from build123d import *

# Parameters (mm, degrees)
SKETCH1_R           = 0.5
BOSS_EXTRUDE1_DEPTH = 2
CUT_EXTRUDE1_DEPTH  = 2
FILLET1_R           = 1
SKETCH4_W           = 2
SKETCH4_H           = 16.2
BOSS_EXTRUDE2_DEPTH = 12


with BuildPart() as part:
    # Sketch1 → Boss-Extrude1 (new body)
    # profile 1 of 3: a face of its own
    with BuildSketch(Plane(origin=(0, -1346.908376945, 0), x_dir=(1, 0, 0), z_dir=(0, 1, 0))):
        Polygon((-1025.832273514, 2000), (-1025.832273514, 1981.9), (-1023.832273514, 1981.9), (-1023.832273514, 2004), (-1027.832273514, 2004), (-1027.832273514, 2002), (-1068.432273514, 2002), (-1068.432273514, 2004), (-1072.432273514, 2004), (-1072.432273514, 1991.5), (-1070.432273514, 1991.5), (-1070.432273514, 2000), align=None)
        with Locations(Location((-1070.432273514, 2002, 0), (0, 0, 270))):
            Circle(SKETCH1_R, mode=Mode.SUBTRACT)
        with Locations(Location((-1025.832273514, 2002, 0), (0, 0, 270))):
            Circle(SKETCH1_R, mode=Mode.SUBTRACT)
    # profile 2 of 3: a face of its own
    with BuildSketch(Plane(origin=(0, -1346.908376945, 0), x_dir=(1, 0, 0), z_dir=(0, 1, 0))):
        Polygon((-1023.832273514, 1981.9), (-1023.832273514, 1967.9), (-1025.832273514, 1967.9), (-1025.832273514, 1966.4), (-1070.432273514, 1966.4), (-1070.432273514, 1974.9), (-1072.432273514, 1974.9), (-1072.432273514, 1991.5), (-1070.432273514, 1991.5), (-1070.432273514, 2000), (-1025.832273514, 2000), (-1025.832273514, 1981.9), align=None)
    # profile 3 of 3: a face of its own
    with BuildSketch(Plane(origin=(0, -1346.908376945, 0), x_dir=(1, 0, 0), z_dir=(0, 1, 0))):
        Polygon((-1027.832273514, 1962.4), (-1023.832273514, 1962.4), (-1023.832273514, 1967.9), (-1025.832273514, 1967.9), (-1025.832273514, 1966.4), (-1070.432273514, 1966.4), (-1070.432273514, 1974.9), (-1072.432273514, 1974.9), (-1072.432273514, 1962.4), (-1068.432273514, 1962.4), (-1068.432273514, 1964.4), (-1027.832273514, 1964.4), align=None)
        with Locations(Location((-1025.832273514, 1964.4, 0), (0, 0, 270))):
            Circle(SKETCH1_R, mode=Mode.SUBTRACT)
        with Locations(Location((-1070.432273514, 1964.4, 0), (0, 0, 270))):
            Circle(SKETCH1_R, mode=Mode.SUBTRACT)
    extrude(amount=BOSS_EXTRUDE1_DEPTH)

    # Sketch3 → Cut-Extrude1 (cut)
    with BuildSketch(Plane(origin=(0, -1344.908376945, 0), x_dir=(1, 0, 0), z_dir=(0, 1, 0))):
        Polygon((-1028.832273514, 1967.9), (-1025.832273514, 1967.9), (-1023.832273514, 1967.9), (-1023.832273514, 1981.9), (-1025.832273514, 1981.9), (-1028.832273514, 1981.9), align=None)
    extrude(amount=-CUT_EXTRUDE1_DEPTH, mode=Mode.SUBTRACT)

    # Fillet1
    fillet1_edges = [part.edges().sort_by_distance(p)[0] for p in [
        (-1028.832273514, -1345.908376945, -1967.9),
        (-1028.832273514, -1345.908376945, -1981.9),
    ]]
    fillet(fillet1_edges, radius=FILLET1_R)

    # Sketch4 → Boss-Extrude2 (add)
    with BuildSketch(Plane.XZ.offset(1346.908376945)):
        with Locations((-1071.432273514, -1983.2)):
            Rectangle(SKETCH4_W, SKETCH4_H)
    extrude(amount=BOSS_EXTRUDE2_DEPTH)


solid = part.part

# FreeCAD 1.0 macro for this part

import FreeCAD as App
import Part
import Sketcher
from FreeCAD import Vector


def edges_at(feature, points):
    """Names of the edges that pass closest to the given points."""
    edges = feature.Shape.Edges
    near = lambda p: min(range(len(edges)), key=lambda i: edges[i].distToShape(Part.Vertex(*p))[0])
    return sorted({f"Edge{near(p) + 1}" for p in points})


def add_polygon(sketch, points):
    """Adds a closed chain of lines whose ends are joined by coincident constraints."""
    first, n = sketch.GeometryCount, len(points)
    for a, b in zip(points, points[1:] + points[:1]):
        sketch.addGeometry(Part.LineSegment(App.Vector(*a, 0), App.Vector(*b, 0)), False)
    for i in range(n):
        sketch.addConstraint(Sketcher.Constraint("Coincident", first + i, 2, first + (i + 1) % n, 1))

doc = App.newDocument("Part")
body = doc.addObject("PartDesign::Body", "Body")

# Sketch on XZ plane
sketch1 = doc.addObject("Sketcher::SketchObject", "Sketch")
body.addObject(sketch1)
sketch1.AttachmentSupport = (doc.XZ_Plane, [""])
sketch1.MapMode = "FlatFace"
sketch1.AttachmentOffset = App.Placement(Vector(0, 0, 1346.908377), App.Rotation())
add_polygon(sketch1, [(-1023.8, -2004), (-1027.8, -2004), (-1027.8, -2002), (-1068.4, -2002), (-1068.4, -2004), (-1072.4, -2004), (-1072.4, -1962.4), (-1068.4, -1962.4), (-1068.4, -1964.4), (-1027.8, -1964.4), (-1027.8, -1962.4), (-1023.8, -1962.4)])  # lines 0-11
sketch1.addGeometry(Part.Circle(Vector(-1070.4, -2002, 0), Vector(0, 0, 1), 0.5), False)  # 12
sketch1.addGeometry(Part.Circle(Vector(-1025.8, -2002, 0), Vector(0, 0, 1), 0.5), False)  # 13
sketch1.addGeometry(Part.Circle(Vector(-1025.8, -1964.4, 0), Vector(0, 0, 1), 0.5), False)  # 14
sketch1.addGeometry(Part.Circle(Vector(-1070.4, -1964.4, 0), Vector(0, 0, 1), 0.5), False)  # 15
sketch1.addConstraint([
    Sketcher.Constraint("Horizontal", 0),
    Sketcher.Constraint("Vertical", 1),
    Sketcher.Constraint("Horizontal", 2),
    Sketcher.Constraint("Vertical", 3),
    Sketcher.Constraint("Horizontal", 4),
    Sketcher.Constraint("Vertical", 5),
    Sketcher.Constraint("Horizontal", 6),
    Sketcher.Constraint("Vertical", 7),
    Sketcher.Constraint("Horizontal", 8),
    Sketcher.Constraint("Vertical", 9),
    Sketcher.Constraint("Horizontal", 10),
    Sketcher.Constraint("Vertical", 11),
    Sketcher.Constraint("Equal", 12, 13),
    Sketcher.Constraint("Equal", 13, 14),
    Sketcher.Constraint("Equal", 14, 15),
    Sketcher.Constraint("Horizontal", 12, 3, 13, 3),
    Sketcher.Constraint("Horizontal", 14, 3, 15, 3),
    Sketcher.Constraint("Horizontal", 13, 3, 1, 2),
    Sketcher.Constraint("Horizontal", 0, 2, 3, 2),
    Sketcher.Constraint("Horizontal", 15, 3, 7, 2),
    Sketcher.Constraint("Horizontal", 6, 2, 9, 2),
    Sketcher.Constraint("Vertical", 13, 3, 14, 3),
    Sketcher.Constraint("Vertical", 12, 3, 15, 3),
    Sketcher.Constraint("Vertical", 3, 2, 6, 2),
    Sketcher.Constraint("Vertical", 1, 2, 8, 2),
    Sketcher.Constraint("Equal", 0, 4),
    Sketcher.Constraint("Equal", 3, 7),
    Sketcher.Constraint("Diameter", 12, 1.0),
    Sketcher.Constraint("DistanceX", 0, 2, 0, 1, 4.0),
    Sketcher.Constraint("DistanceY", 1, 1, 1, 2, 2.0),
    Sketcher.Constraint("DistanceX", 2, 2, 2, 1, 40.6),
    Sketcher.Constraint("DistanceY", 5, 1, 5, 2, 41.6),
    Sketcher.Constraint("DistanceY", 12, 3, -1, 1, 2002.0),
    Sketcher.Constraint("DistanceX", 0, 2, 13, 3, 2.0),
    Sketcher.Constraint("DistanceX", 12, 3, 2, 2, 2.0),
    Sketcher.Constraint("DistanceX", 12, 3, -1, 1, 1070.432274),
])
pad1 = doc.addObject("PartDesign::Pad", "Pad")
body.addObject(pad1)
pad1.Profile = sketch1
pad1.Length = 2
pad1.Reversed = True

# Sketch on XZ plane
sketch2 = doc.addObject("Sketcher::SketchObject", "Sketch001")
body.addObject(sketch2)
sketch2.AttachmentSupport = (doc.XZ_Plane, [""])
sketch2.MapMode = "FlatFace"
sketch2.AttachmentOffset = App.Placement(Vector(0, 0, 1344.908377), App.Rotation())
add_polygon(sketch2, [(-1029, -1968), (-1024, -1968), (-1024, -1982), (-1029, -1982)])  # lines 0-3
sketch2.addConstraint([
    Sketcher.Constraint("Horizontal", 0),
    Sketcher.Constraint("Vertical", 1),
    Sketcher.Constraint("Horizontal", 2),
    Sketcher.Constraint("Vertical", 3),
    Sketcher.Constraint("DistanceX", 0, 1, 0, 2, 5.0),
    Sketcher.Constraint("DistanceY", 1, 2, 1, 1, 14.0),
    Sketcher.Constraint("DistanceY", 0, 2, -1, 1, 1967.9),
    Sketcher.Constraint("DistanceX", 0, 2, -1, 1, 1023.832274),
])
pocket1 = doc.addObject("PartDesign::Pocket", "Pocket")
body.addObject(pocket1)
pocket1.Profile = sketch2
pocket1.Length = 2
pocket1.Reversed = True
doc.recompute()

fillet = doc.addObject("PartDesign::Fillet", "Fillet")
body.addObject(fillet)
fillet.Base = (pocket1, edges_at(pocket1, [(-1028.832, -1345.908, -1967.9), (-1028.832, -1345.908, -1981.9)]))
fillet.Radius = 1

# Sketch on XZ plane
sketch3 = doc.addObject("Sketcher::SketchObject", "Sketch002")
body.addObject(sketch3)
sketch3.AttachmentSupport = (doc.XZ_Plane, [""])
sketch3.MapMode = "FlatFace"
sketch3.AttachmentOffset = App.Placement(Vector(0, 0, 1346.908377), App.Rotation())
add_polygon(sketch3, [(-1072.4, -1975.1), (-1072.4, -1991.3), (-1070.4, -1991.3), (-1070.4, -1975.1)])  # lines 0-3
sketch3.addConstraint([
    Sketcher.Constraint("Vertical", 0),
    Sketcher.Constraint("Horizontal", 1),
    Sketcher.Constraint("Vertical", 2),
    Sketcher.Constraint("Horizontal", 3),
    Sketcher.Constraint("DistanceX", 1, 1, 1, 2, 2.0),
    Sketcher.Constraint("DistanceY", 0, 2, 0, 1, 16.2),
    Sketcher.Constraint("DistanceY", 0, 2, -1, 1, 1991.3),
    Sketcher.Constraint("DistanceX", 0, 2, -1, 1, 1072.432274),
])
pad2 = doc.addObject("PartDesign::Pad", "Pad001")
body.addObject(pad2)
pad2.Profile = sketch3
pad2.Length = 12

doc.recompute()
